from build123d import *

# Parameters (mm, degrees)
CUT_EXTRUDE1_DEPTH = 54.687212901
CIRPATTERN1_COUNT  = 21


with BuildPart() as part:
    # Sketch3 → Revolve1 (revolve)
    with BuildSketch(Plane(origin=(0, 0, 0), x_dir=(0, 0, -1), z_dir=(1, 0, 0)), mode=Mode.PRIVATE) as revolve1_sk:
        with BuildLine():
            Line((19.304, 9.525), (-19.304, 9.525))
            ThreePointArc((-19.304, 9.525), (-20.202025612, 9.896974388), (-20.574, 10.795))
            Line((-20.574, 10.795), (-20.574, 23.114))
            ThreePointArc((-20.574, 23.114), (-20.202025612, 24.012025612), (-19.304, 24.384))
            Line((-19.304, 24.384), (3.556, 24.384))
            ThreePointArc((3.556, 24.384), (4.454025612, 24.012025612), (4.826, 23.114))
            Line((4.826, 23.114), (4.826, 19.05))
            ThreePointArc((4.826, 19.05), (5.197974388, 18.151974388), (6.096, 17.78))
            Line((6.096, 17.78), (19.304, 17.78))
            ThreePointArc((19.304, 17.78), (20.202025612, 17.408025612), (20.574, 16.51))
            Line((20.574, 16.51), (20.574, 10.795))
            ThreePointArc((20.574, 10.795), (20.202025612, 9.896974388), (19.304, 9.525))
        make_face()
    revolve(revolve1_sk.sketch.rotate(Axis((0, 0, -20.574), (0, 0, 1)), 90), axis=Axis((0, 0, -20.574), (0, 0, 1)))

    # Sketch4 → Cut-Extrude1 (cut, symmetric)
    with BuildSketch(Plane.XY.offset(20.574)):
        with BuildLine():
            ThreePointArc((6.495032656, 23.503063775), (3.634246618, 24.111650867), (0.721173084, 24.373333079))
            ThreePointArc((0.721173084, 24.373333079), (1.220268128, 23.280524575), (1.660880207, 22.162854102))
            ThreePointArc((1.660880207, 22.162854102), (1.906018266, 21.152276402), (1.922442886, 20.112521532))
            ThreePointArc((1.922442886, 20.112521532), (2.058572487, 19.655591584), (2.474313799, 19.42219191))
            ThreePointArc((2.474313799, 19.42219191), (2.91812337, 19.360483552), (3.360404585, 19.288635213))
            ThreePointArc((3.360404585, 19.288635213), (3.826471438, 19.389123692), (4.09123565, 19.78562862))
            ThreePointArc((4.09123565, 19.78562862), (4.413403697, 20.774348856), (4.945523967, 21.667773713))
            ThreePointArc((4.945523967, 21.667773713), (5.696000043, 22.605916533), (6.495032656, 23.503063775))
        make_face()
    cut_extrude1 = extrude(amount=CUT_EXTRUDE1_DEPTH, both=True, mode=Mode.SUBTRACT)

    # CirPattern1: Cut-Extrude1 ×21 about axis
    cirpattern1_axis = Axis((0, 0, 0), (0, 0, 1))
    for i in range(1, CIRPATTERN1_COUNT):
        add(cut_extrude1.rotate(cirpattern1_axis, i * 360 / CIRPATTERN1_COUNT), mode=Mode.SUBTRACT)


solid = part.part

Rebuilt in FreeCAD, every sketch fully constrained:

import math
import FreeCAD as App
import Part
import Sketcher

V = App.Vector
Q = App.Units.Quantity

doc = App.newDocument("Part")
body = doc.addObject("PartDesign::Body", "Body")

sketch1 = body.newObject("Sketcher::SketchObject", "Sketch")
sketch1.AttachmentSupport = (doc.getObject("YZ_Plane"), [""])
sketch1.MapMode = "FlatFace"
sketch1.addGeometry([
    Part.LineSegment(V(9.5, 19.3, 0), V(9.5, -19.3, 0)),
    Part.ArcOfCircle(Part.Circle(V(10.8, -19.3, 0), V(0, 0, 1), 1.3), math.radians(180), math.radians(270)),
    Part.LineSegment(V(10.8, -20.6, 0), V(16.5, -20.6, 0)),
    Part.ArcOfCircle(Part.Circle(V(16.5, -19.3, 0), V(0, 0, 1), 1.3), math.radians(-90), math.radians(0)),
    Part.LineSegment(V(17.8, -19.3, 0), V(17.8, -6.1, 0)),
    Part.ArcOfCircle(Part.Circle(V(19.1, -6.1, 0), V(0, 0, 1), 1.3), math.radians(90), math.radians(180)),
    Part.LineSegment(V(19.1, -4.8, 0), V(23.1, -4.8, 0)),
    Part.ArcOfCircle(Part.Circle(V(23.1, -3.6, 0), V(0, 0, 1), 1.3), math.radians(-90), math.radians(0)),
    Part.LineSegment(V(24.4, -3.6, 0), V(24.4, 19.3, 0)),
    Part.ArcOfCircle(Part.Circle(V(23.1, 19.3, 0), V(0, 0, 1), 1.3), math.radians(0), math.radians(90)),
    Part.LineSegment(V(23.1, 20.6, 0), V(10.8, 20.6, 0)),
    Part.ArcOfCircle(Part.Circle(V(10.8, 19.3, 0), V(0, 0, 1), 1.3), math.radians(90), math.radians(180)),
], False)
sketch1.addConstraint([
    Sketcher.Constraint("Tangent", 0, 2, 1, 1),
    Sketcher.Constraint("Tangent", 1, 2, 2, 1),
    Sketcher.Constraint("Tangent", 2, 2, 3, 1),
    Sketcher.Constraint("Tangent", 3, 2, 4, 1),
    Sketcher.Constraint("Tangent", 4, 2, 5, 2),
    Sketcher.Constraint("Tangent", 5, 1, 6, 1),
    Sketcher.Constraint("Tangent", 6, 2, 7, 1),
    Sketcher.Constraint("Tangent", 7, 2, 8, 1),
    Sketcher.Constraint("Tangent", 8, 2, 9, 1),
    Sketcher.Constraint("Tangent", 9, 2, 10, 1),
    Sketcher.Constraint("Tangent", 10, 2, 11, 1),
    Sketcher.Constraint("Tangent", 11, 2, 0, 1),
    Sketcher.Constraint("Vertical", 0),
    Sketcher.Constraint("Horizontal", 2),
    Sketcher.Constraint("Vertical", 4),
    Sketcher.Constraint("Horizontal", 6),
    Sketcher.Constraint("Vertical", 8),
    Sketcher.Constraint("Horizontal", 10),
    Sketcher.Constraint("Equal", 1, 3),
    Sketcher.Constraint("Equal", 3, 5),
    Sketcher.Constraint("Equal", 5, 7),
    Sketcher.Constraint("Equal", 7, 9),
    Sketcher.Constraint("Equal", 9, 11),
    Sketcher.Constraint("Radius", 1, Q("0.05 in")),
    Sketcher.Constraint("DistanceY", 8, 1, 8, 2, Q("0.9 in")),
    Sketcher.Constraint("DistanceX", 6, 1, 6, 2, Q("0.16 in")),
    Sketcher.Constraint("DistanceY", 0, 2, 0, 1, Q("1.52 in")),
    Sketcher.Constraint("DistanceX", -1, 1, 3, 2, Q("0.7 in")),
    Sketcher.Constraint("DistanceX", 2, 1, 2, 2, Q("0.225 in")),
    Sketcher.Constraint("DistanceY", 1, 3, -1, 1, Q("0.76 in")),
])
revolution = body.newObject("PartDesign::Revolution", "Revolution")
revolution.Profile = sketch1
revolution.ReferenceAxis = (sketch1, ["V_Axis"])
revolution.Angle = 360

sketch2 = body.newObject("Sketcher::SketchObject", "Sketch001")
sketch2.AttachmentSupport = (doc.getObject("XY_Plane"), [""])
sketch2.MapMode = "FlatFace"
sketch2.AttachmentOffset = App.Placement(V(0, 0, 0.81 * 25.4), App.Rotation())
sketch2.addGeometry([
    Part.ArcOfCircle(Part.Circle(V(0, 0, 0), V(0, 0, 1), 24.4), math.radians(74.55), math.radians(88.31)),
    Part.ArcOfCircle(Part.Circle(V(-19.7, 14.4, 0), V(0, 0, 1), 22.7), math.radians(20), math.radians(26.06)),
    Part.ArcOfCircle(Part.Circle(V(-2.7, 20.6, 0), V(0, 0, 1), 4.7), math.radians(-5), math.radians(20)),
    Part.ArcOfCircle(Part.Circle(V(2.6, 20.1, 0), V(0, 0, 1), 0.6), math.radians(175), math.radians(263)),
    Part.ArcOfCircle(Part.Circle(V(0, 0, 0), V(0, 0, 1), 19.6), math.radians(80.12), math.radians(82.74)),
    Part.ArcOfCircle(Part.Circle(V(3.5, 19.9, 0), V(0, 0, 1), 0.6), math.radians(-100), math.radians(-12)),
    Part.ArcOfCircle(Part.Circle(V(8.7, 18.8, 0), V(0, 0, 1), 4.7), math.radians(143), math.radians(168)),
    Part.ArcOfCircle(Part.Circle(V(23.1, 8, 0), V(0, 0, 1), 22.7), math.radians(136.8), math.radians(142.86)),
], False)
sketch2.addConstraint([
    Sketcher.Constraint("Coincident", 0, 2, 1, 2),
    Sketcher.Constraint("Tangent", 1, 1, 2, 2),
    Sketcher.Constraint("Tangent", 2, 1, 3, 1),
    Sketcher.Constraint("Tangent", 3, 2, 4, 2),
    Sketcher.Constraint("Tangent", 4, 1, 5, 1),
    Sketcher.Constraint("Tangent", 5, 2, 6, 2),
    Sketcher.Constraint("Tangent", 6, 1, 7, 2),
    Sketcher.Constraint("Coincident", 7, 1, 0, 1),
    Sketcher.Constraint("Coincident", 0, 3, -1, 1),
    Sketcher.Constraint("Coincident", 4, 3, -1, 1),
    Sketcher.Constraint("Equal", 3, 5),
    Sketcher.Constraint("Equal", 2, 6),
    Sketcher.Constraint("Equal", 1, 7),
    Sketcher.Constraint("Radius", 0, Q("0.96 in")),
    Sketcher.Constraint("Radius", 3, Q("0.025 in")),
    Sketcher.Constraint("Radius", 1, 22.712305),
    Sketcher.Constraint("Radius", 2, 4.690003),
    Sketcher.Constraint("Radius", 4, 19.579166),
    Sketcher.Constraint("DistanceY", 1, 3, 5, 3, Q("0.2173002 in")),
    Sketcher.Constraint("DistanceX", 0, 2, 6, 3, Q("0.3135002 in")),
    Sketcher.Constraint("DistanceY", 3, 2, 1, 1, Q("0.1079001 in")),
    Sketcher.Constraint("DistanceY", -1, 1, 3, 3, 20.052101),
    Sketcher.Constraint("DistanceY", -1, 1, 1, 3, 14.394788),
    Sketcher.Constraint("DistanceX", -1, 1, 7, 3, 23.050241),
])
pocket1 = body.newObject("PartDesign::Pocket", "Pocket")
pocket1.Profile = sketch2
pocket1.Length = 109.374426
pocket1.Midplane = True
doc.recompute()

polarpattern = body.newObject("PartDesign::PolarPattern", "PolarPattern")
polarpattern.Originals = [pocket1]
polarpattern.Axis = (doc.getObject("Z_Axis"), [""])
polarpattern.Angle = 360
polarpattern.Occurrences = 21
body.Tip = polarpattern

doc.recompute()
